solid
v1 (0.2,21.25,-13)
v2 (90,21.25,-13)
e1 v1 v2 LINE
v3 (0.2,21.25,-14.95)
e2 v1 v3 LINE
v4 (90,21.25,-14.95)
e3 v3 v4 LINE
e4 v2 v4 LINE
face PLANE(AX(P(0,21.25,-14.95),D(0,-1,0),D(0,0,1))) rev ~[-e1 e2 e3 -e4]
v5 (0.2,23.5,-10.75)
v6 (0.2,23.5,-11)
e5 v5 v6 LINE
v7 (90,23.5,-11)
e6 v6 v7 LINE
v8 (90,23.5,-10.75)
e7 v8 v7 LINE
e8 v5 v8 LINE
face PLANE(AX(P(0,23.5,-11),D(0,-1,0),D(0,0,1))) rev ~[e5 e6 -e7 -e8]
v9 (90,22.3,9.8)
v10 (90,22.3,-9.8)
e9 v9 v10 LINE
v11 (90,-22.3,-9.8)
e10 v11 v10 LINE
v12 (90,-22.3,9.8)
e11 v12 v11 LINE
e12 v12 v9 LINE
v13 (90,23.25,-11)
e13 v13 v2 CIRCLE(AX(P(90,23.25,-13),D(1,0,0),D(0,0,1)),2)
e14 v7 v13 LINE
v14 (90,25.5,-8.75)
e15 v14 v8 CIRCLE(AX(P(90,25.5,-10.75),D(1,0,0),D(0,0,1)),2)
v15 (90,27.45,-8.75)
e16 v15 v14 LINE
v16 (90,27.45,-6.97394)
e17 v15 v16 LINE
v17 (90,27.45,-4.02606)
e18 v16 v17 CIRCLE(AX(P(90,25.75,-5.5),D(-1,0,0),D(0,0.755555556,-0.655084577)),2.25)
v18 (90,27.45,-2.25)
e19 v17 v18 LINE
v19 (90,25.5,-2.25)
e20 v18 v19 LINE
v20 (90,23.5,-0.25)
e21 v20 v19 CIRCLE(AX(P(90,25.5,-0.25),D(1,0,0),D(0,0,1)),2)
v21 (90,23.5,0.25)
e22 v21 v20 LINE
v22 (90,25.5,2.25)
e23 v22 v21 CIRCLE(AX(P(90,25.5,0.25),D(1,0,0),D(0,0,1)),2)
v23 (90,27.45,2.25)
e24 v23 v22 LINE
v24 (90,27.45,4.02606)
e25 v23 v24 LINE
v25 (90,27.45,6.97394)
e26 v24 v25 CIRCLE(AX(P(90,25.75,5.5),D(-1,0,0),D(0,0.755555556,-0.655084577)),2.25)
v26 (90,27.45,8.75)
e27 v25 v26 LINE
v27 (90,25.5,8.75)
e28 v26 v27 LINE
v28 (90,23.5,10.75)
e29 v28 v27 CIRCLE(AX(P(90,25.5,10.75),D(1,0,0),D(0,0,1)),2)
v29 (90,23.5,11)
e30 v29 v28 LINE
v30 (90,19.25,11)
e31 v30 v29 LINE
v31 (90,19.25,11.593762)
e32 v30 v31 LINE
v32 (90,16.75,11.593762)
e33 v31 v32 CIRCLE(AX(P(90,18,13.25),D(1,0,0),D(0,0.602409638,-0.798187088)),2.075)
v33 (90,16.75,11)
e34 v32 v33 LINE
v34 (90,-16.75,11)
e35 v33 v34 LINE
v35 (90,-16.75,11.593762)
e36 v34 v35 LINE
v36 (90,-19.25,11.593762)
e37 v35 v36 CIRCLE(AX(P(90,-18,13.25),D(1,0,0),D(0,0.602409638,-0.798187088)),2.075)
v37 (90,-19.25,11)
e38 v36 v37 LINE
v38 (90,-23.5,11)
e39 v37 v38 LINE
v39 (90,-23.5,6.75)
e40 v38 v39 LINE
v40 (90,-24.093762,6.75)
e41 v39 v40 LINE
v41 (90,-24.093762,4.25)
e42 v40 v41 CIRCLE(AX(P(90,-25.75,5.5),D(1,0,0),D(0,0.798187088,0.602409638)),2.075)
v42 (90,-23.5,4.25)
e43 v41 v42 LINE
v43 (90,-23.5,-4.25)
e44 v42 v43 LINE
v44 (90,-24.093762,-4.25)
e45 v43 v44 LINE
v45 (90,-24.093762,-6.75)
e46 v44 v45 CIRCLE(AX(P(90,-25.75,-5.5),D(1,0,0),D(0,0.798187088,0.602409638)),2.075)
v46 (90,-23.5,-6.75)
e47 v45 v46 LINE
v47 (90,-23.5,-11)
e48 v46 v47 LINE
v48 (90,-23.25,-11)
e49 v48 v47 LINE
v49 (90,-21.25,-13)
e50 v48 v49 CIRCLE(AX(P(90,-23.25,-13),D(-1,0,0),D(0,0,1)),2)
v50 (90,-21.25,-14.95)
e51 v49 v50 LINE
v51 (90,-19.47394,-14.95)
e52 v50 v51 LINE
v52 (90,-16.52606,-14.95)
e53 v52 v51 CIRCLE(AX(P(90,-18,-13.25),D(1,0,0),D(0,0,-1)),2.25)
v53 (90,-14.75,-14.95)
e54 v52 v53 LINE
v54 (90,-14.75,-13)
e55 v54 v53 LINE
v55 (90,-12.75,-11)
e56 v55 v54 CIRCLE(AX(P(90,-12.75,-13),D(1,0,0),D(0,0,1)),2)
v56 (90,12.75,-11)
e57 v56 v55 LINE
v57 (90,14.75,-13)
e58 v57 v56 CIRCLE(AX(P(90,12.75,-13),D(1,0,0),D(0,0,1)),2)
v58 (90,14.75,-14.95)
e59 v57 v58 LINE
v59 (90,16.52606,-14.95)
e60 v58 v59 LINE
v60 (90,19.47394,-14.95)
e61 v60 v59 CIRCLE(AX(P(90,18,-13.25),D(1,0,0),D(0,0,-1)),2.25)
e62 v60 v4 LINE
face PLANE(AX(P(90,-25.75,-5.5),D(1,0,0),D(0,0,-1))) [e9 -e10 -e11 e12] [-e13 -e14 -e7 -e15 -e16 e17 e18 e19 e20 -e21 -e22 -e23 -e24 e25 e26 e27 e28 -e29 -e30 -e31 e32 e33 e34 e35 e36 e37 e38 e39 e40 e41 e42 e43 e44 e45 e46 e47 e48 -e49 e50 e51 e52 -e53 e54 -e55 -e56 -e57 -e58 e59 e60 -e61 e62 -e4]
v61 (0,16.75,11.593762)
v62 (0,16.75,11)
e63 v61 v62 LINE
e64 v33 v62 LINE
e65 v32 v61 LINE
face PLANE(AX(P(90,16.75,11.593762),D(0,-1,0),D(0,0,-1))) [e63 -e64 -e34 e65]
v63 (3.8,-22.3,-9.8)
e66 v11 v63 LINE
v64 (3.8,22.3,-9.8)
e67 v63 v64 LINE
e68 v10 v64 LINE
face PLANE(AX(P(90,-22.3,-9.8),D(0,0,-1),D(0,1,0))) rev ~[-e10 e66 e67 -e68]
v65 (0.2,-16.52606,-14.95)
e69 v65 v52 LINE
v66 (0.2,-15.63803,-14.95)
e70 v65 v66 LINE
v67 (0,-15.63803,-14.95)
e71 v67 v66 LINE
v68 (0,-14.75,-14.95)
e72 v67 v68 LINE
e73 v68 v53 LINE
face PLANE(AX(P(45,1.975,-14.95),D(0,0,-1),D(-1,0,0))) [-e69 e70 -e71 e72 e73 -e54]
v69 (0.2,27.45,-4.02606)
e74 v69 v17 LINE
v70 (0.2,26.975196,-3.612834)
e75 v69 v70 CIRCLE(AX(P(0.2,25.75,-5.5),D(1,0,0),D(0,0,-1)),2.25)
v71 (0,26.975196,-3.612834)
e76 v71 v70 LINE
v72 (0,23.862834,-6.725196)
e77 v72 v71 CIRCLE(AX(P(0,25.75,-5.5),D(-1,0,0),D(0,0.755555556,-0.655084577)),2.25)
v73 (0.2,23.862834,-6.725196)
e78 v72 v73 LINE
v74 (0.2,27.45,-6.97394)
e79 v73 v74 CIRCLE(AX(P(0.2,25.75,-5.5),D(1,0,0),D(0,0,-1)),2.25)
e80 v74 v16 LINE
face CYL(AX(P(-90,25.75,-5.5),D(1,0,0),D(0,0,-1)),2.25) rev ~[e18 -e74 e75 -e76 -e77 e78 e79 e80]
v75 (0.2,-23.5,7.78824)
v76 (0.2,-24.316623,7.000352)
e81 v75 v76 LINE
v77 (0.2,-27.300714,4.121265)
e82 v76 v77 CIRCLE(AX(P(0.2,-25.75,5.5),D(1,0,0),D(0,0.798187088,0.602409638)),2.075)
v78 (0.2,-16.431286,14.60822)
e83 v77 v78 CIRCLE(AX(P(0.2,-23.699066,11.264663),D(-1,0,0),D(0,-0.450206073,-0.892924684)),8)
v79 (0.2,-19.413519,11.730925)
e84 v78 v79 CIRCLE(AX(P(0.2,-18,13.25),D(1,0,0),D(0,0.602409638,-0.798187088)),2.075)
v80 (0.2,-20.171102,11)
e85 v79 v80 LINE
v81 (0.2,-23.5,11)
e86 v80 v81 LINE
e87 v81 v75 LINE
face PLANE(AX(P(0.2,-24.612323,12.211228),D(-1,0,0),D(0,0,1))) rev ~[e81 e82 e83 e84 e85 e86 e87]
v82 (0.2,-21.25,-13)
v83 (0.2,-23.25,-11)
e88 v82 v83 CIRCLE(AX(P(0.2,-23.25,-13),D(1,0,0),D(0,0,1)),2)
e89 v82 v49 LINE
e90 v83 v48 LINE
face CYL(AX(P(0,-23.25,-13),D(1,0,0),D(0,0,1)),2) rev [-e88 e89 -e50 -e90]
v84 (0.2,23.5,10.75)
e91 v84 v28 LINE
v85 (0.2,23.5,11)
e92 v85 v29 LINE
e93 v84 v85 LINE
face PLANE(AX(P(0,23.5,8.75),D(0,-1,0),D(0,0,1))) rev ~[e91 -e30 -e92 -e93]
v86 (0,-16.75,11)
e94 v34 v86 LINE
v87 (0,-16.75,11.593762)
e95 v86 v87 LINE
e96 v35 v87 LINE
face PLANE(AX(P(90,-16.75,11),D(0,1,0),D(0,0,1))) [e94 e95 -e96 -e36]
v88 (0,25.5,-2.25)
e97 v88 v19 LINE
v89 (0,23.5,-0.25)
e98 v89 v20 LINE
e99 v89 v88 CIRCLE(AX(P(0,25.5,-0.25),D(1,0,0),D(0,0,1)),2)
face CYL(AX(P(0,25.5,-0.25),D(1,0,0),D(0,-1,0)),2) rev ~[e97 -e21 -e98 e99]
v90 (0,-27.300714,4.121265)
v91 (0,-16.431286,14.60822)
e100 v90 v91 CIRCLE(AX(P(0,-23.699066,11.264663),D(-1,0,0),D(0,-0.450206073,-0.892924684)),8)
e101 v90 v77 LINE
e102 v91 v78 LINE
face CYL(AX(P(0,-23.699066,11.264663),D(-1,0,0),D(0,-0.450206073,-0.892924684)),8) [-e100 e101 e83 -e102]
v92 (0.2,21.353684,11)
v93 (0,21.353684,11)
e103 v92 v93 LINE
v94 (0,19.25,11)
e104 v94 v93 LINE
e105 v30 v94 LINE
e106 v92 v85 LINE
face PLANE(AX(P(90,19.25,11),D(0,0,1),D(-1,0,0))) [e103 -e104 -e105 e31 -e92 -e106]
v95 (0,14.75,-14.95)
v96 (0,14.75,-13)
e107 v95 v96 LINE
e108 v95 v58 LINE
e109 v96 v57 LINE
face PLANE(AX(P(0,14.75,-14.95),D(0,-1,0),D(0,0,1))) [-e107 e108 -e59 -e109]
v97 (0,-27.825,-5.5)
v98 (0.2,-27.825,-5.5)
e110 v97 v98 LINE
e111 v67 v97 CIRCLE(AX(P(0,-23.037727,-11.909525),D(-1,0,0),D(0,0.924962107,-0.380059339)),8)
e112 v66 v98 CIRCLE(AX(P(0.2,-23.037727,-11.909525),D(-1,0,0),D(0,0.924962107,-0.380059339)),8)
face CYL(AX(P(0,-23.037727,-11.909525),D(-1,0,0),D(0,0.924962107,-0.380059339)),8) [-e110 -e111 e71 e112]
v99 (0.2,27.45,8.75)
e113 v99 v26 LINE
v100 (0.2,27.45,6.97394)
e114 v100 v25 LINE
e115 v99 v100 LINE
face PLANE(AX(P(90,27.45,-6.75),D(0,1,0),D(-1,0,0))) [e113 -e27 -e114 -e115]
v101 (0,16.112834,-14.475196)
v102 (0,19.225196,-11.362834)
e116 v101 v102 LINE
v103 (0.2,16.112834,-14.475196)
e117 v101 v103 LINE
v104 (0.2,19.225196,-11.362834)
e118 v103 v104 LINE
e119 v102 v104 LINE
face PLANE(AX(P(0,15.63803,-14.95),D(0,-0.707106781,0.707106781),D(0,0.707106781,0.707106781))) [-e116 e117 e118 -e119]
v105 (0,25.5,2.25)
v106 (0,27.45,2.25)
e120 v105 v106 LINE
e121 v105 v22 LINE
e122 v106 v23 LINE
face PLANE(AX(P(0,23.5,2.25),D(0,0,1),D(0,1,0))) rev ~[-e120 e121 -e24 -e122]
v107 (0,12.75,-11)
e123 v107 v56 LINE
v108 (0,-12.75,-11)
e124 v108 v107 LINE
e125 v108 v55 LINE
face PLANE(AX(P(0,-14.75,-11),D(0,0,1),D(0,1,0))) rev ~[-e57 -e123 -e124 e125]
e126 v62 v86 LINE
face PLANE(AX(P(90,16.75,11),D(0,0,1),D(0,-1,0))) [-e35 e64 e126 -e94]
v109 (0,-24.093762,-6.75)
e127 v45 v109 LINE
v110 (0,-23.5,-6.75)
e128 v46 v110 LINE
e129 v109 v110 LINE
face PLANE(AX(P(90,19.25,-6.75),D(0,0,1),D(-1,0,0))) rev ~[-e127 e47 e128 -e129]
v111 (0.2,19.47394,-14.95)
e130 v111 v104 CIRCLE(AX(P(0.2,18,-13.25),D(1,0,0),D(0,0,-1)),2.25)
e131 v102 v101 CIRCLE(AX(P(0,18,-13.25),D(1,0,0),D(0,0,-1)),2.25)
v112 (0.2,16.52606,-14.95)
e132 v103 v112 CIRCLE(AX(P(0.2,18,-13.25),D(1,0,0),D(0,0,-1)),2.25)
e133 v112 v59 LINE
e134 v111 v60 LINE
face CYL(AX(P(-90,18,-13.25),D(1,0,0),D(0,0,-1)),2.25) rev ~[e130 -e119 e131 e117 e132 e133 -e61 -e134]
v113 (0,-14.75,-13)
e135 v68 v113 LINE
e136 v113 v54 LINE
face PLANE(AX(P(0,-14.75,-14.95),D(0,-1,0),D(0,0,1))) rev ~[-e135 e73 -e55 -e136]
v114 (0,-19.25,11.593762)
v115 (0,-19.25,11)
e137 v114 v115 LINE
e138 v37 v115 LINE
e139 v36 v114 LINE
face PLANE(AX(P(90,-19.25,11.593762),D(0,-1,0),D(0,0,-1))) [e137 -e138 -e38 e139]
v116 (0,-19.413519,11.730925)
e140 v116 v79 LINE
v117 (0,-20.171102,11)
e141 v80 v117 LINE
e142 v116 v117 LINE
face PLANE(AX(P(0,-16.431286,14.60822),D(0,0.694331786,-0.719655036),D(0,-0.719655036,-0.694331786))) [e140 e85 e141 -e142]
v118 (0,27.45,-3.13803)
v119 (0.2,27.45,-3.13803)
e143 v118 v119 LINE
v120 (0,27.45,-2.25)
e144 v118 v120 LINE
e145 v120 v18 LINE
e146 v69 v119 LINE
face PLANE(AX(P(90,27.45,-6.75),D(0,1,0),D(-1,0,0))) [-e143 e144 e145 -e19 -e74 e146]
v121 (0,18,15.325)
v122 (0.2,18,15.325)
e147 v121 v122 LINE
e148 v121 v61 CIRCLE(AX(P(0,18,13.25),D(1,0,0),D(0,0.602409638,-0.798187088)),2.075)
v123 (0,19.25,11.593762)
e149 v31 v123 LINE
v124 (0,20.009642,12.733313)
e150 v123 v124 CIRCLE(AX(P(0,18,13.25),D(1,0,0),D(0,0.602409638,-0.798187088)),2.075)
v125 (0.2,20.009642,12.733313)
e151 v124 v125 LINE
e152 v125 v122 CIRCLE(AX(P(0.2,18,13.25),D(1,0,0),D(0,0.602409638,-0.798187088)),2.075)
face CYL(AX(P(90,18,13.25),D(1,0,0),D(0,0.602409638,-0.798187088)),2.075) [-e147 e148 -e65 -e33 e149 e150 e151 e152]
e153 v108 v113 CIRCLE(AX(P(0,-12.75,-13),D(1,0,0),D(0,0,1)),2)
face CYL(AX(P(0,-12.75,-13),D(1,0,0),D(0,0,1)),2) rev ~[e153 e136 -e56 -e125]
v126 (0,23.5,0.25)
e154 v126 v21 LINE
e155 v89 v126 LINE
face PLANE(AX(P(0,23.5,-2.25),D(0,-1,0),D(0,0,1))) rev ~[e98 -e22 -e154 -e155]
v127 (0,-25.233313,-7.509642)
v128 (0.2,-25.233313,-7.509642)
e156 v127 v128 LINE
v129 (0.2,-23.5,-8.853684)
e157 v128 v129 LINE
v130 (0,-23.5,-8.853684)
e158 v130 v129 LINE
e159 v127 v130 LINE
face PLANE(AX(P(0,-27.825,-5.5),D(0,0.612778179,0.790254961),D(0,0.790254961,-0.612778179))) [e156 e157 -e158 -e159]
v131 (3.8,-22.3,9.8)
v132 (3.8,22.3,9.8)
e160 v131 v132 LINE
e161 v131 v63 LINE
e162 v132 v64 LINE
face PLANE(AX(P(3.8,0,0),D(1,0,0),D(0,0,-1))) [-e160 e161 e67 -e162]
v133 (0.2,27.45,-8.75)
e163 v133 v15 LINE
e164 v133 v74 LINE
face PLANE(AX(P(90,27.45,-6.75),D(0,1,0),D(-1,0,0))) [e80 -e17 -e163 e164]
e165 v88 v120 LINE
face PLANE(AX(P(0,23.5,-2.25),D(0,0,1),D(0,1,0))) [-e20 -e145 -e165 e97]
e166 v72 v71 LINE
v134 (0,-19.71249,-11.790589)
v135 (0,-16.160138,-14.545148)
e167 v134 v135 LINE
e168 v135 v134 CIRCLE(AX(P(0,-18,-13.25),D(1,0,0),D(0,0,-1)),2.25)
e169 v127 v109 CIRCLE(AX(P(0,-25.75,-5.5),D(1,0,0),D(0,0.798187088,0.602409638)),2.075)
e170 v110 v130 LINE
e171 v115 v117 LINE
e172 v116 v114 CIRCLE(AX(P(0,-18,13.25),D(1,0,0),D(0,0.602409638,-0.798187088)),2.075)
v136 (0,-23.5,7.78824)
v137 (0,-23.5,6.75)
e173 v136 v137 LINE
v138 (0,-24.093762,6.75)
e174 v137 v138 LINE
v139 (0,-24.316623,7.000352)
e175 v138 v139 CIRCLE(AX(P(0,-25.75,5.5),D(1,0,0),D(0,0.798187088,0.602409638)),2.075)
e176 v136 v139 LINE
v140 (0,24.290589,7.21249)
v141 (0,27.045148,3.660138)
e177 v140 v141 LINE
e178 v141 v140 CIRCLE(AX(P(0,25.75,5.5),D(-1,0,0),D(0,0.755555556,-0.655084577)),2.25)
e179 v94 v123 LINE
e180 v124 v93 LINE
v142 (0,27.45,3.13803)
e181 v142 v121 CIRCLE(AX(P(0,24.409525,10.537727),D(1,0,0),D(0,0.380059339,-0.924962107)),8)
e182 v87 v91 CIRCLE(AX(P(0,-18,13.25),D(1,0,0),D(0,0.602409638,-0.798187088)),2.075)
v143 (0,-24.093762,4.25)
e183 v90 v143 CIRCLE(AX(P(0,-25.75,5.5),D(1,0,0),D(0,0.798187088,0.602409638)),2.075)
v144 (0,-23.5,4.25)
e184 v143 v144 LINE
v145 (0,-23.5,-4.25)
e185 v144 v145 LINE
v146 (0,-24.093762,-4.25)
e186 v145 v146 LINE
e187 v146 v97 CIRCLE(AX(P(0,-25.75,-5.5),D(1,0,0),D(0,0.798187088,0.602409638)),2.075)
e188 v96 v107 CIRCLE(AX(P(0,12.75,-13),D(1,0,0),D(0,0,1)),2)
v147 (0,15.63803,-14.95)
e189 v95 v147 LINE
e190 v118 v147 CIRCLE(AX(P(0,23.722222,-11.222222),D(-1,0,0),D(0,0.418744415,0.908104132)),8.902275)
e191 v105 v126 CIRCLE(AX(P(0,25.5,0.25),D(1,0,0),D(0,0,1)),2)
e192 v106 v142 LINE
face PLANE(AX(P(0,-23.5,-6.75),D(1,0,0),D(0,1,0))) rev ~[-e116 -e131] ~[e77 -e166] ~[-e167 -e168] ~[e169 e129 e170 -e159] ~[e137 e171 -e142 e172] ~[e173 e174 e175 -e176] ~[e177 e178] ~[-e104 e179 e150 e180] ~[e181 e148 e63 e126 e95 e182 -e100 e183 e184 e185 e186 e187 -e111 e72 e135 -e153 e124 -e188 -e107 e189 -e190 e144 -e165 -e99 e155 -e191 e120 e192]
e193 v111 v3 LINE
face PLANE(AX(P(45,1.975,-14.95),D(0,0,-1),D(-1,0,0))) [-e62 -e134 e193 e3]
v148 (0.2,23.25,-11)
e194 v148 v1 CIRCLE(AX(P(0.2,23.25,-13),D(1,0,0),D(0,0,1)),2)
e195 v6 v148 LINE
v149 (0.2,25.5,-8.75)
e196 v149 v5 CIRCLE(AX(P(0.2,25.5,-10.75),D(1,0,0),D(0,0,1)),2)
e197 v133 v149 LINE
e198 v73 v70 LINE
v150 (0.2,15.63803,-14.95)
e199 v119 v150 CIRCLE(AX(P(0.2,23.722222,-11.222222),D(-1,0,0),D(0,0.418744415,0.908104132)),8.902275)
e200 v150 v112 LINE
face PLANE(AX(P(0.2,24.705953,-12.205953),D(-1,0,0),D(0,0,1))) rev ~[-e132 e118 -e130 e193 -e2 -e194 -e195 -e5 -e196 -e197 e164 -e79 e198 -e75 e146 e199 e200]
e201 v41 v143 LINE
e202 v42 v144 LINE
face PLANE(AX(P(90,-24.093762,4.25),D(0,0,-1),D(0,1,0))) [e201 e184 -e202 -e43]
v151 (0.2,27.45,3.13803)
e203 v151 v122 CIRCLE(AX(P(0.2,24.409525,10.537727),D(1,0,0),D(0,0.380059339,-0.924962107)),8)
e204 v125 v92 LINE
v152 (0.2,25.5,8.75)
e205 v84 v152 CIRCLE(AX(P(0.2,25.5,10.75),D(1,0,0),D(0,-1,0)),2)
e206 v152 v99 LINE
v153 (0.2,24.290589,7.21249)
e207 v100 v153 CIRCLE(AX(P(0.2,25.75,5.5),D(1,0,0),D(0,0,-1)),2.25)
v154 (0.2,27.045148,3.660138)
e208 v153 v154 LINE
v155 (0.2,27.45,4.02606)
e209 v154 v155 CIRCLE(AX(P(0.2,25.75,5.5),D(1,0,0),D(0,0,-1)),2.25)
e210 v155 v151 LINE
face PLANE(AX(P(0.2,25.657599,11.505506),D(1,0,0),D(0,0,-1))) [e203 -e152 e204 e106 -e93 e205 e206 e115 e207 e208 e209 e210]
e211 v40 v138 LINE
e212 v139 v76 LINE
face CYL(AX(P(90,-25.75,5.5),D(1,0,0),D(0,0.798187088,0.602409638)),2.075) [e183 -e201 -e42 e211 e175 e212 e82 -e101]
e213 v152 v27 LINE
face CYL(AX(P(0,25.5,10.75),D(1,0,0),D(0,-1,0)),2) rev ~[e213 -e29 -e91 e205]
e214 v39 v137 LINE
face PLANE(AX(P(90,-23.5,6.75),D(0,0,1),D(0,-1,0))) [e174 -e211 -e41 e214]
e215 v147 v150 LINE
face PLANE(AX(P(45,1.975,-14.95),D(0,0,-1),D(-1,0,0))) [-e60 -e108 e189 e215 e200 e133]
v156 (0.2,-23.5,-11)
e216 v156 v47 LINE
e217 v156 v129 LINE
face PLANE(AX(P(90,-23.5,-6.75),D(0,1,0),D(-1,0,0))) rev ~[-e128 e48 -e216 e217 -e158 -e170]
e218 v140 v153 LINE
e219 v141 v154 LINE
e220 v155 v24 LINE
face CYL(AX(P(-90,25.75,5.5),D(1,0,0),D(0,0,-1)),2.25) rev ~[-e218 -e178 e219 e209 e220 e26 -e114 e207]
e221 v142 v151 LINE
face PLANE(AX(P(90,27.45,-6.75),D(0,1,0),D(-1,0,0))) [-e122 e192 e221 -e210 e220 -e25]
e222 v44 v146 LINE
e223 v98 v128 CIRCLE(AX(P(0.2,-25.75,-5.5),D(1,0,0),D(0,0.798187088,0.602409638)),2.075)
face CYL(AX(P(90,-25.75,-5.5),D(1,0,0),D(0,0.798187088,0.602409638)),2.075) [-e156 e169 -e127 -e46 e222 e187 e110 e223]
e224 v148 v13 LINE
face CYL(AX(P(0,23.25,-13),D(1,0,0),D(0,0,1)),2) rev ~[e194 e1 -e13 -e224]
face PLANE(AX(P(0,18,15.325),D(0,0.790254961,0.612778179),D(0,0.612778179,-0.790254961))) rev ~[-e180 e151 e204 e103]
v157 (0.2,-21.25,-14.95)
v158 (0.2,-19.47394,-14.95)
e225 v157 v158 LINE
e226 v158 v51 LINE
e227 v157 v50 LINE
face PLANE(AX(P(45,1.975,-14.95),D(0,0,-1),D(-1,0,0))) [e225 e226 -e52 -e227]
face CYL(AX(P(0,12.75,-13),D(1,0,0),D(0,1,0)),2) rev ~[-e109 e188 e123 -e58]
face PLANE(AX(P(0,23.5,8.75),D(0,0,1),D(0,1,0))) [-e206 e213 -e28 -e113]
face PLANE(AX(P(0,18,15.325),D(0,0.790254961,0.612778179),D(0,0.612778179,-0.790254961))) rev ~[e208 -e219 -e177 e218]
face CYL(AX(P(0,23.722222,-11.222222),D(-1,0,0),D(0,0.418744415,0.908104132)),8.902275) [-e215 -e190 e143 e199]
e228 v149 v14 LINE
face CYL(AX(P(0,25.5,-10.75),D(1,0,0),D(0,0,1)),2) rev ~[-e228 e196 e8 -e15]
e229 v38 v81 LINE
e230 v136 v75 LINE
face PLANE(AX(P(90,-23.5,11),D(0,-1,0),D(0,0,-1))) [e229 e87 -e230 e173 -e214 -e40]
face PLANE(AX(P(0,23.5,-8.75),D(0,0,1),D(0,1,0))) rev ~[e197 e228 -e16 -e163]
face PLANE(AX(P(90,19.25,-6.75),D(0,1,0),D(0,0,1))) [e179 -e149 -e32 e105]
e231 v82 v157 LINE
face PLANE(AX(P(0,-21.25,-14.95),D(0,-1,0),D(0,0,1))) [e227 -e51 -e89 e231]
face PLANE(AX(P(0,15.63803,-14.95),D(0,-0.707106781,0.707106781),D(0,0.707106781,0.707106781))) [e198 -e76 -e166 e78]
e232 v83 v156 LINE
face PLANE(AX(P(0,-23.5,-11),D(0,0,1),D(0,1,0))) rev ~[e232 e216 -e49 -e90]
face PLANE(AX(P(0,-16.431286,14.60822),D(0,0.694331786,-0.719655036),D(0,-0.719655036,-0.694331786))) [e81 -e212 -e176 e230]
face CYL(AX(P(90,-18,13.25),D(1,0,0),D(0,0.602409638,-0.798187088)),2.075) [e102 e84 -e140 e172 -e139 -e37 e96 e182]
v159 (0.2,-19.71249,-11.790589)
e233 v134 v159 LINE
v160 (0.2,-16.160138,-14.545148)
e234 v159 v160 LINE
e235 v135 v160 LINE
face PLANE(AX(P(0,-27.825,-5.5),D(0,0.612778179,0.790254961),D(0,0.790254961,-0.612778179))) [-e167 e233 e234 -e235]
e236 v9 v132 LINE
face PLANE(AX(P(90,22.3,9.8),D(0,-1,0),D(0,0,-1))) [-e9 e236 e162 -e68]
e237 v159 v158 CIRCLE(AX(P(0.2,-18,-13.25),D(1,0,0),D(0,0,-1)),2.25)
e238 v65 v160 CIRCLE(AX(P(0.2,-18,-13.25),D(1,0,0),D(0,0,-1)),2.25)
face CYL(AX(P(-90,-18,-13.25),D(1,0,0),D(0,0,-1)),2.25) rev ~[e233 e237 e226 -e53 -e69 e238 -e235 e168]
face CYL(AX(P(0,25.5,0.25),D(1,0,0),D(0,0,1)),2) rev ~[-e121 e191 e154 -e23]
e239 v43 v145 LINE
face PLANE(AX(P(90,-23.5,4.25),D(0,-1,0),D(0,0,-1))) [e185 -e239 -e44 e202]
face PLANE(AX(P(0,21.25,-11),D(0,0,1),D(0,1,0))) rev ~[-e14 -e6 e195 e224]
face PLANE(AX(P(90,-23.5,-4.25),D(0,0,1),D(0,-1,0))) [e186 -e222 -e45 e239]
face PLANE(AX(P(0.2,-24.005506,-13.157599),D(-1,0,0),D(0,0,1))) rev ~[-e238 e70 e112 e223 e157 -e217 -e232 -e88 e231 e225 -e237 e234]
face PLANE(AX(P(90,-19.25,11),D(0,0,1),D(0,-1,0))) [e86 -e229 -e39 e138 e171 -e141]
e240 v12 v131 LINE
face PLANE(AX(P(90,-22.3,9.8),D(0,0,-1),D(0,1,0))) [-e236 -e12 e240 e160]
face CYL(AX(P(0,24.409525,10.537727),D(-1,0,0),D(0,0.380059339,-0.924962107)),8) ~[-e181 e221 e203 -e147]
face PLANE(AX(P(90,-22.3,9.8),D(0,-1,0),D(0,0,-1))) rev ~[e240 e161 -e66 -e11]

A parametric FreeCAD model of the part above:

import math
import FreeCAD as App
import Part
import Sketcher
from FreeCAD import Vector
Q = App.Units.Quantity


def edges_at(feature, points):
    """Names of the edges that pass closest to the given points."""
    edges = feature.Shape.Edges
    near = lambda p: min(range(len(edges)), key=lambda i: edges[i].distToShape(Part.Vertex(*p))[0])
    return sorted({f"Edge{near(p) + 1}" for p in points})

doc = App.newDocument("Part")
params = doc.addObject("Spreadsheet::Sheet", "Params")
for row, (alias, value) in enumerate([
    ("sketch1_width", "33.5 mm"),
    ("sketch1_height", "8.5 mm"),
    ("pad1_length", "90 mm"),
    ("sketch2_width", "90 mm"),
    ("sketch2_height", "17.75 mm"),
    ("pad2_length", "8.2 mm"),
    ("sketch3_width", "90 mm"),
    ("sketch3_height", "50.95 mm"),
    ("pad3_length", "8.2 mm"),
    ("sketch4_width", "29.5 mm"),
    ("sketch4_height", "3.95 mm"),
    ("sketch5_width", "6.2 mm"),
    ("sketch5_height", "3.95 mm"),
    ("sketch6_width", "3.95 mm"),
    ("sketch6_height", "2.25 mm"),
    ("sketch7_height", "4.5 mm"),
    ("sketch7_width", "3.95 mm"),
    ("sketch8_width", "3.95 mm"),
    ("sketch8_height", "2.25 mm"),
    ("sketch9_width", "2.25 mm"),
    ("sketch9_height", "3.95 mm"),
    ("sketch10_width", "44.6 mm"),
    ("sketch10_height", "19.6 mm"),
    ("pocket7_length", "86.2 mm"),
    ("sketch11_diameter", "2.5 mm"),
    ("hole_diameter", "2.5 mm"),
    ("hole_depth", "90 mm"),
    ("sketch12_diameter", "4.5 mm"),
    ("hole2_diameter", "4.5 mm"),
    ("hole2_depth", "90 mm"),
    ("fillet_radius", "2 mm"),
    ("fillet2_radius", "2 mm"),
    ("sketch13_diameter", "2.5 mm"),
    ("pad4_length", "90 mm"),
    ("sketch14_radius", "8 mm"),
    ("pad5_length", "0.2 mm"),
], start=1):
    params.set(f"A{row}", alias)
    params.set(f"B{row}", "=" + value)
    params.setAlias(f"B{row}", alias)

body = doc.addObject("PartDesign::Body", "Body")

# Sketch on YZ plane
sketch1 = body.newObject("Sketcher::SketchObject", "Sketch")
sketch1.AttachmentSupport = (doc.getObject("YZ_Plane"), [""])
sketch1.MapMode = "FlatFace"
sketch1.AttachmentOffset = App.Placement(Vector(0, 0, 90), App.Rotation())
sketch1.addGeometry(Part.LineSegment(Vector(-24.1, -6.8, 0), Vector(19.2, -6.8, 0)), False)
sketch1.addGeometry(Part.LineSegment(Vector(19.2, -6.8, 0), Vector(19.2, 11.6, 0)), False)
sketch1.addGeometry(Part.ArcOfCircle(Part.Circle(Vector(18, 13.2, 0), Vector(0, 0, 1), 2.1), math.radians(-53), math.radians(233)), False)
sketch1.addGeometry(Part.LineSegment(Vector(16.8, 11.6, 0), Vector(16.8, 11, 0)), False)
sketch1.addGeometry(Part.LineSegment(Vector(16.8, 11, 0), Vector(-16.8, 11, 0)), False)
sketch1.addGeometry(Part.LineSegment(Vector(-16.8, 11, 0), Vector(-16.8, 11.6, 0)), False)
sketch1.addGeometry(Part.ArcOfCircle(Part.Circle(Vector(-18, 13.2, 0), Vector(0, 0, 1), 2.1), math.radians(-53), math.radians(233)), False)
sketch1.addGeometry(Part.LineSegment(Vector(-19.2, 11.6, 0), Vector(-19.2, 11, 0)), False)
sketch1.addGeometry(Part.LineSegment(Vector(-19.2, 11, 0), Vector(-23.5, 11, 0)), False)
sketch1.addGeometry(Part.LineSegment(Vector(-23.5, 11, 0), Vector(-23.5, 6.8, 0)), False)
sketch1.addGeometry(Part.LineSegment(Vector(-23.5, 6.8, 0), Vector(-24.1, 6.8, 0)), False)
sketch1.addGeometry(Part.ArcOfCircle(Part.Circle(Vector(-25.8, 5.5, 0), Vector(0, 0, 1), 2.1), math.radians(37), math.radians(323)), False)
sketch1.addGeometry(Part.LineSegment(Vector(-24.1, 4.2, 0), Vector(-23.5, 4.2, 0)), False)
sketch1.addGeometry(Part.LineSegment(Vector(-23.5, 4.2, 0), Vector(-23.5, -4.2, 0)), False)
sketch1.addGeometry(Part.LineSegment(Vector(-23.5, -4.2, 0), Vector(-24.1, -4.2, 0)), False)
sketch1.addGeometry(Part.ArcOfCircle(Part.Circle(Vector(-25.8, -5.5, 0), Vector(0, 0, 1), 2.1), math.radians(37), math.radians(323)), False)
sketch1.addConstraint(Sketcher.Constraint("Coincident", 0, 2, 1, 1))
sketch1.addConstraint(Sketcher.Constraint("Coincident", 1, 2, 2, 1))
sketch1.addConstraint(Sketcher.Constraint("Coincident", 2, 2, 3, 1))
sketch1.addConstraint(Sketcher.Constraint("Coincident", 3, 2, 4, 1))
sketch1.addConstraint(Sketcher.Constraint("Coincident", 4, 2, 5, 1))
sketch1.addConstraint(Sketcher.Constraint("Coincident", 5, 2, 6, 1))
sketch1.addConstraint(Sketcher.Constraint("Coincident", 6, 2, 7, 1))
sketch1.addConstraint(Sketcher.Constraint("Coincident", 7, 2, 8, 1))
sketch1.addConstraint(Sketcher.Constraint("Coincident", 8, 2, 9, 1))
sketch1.addConstraint(Sketcher.Constraint("Coincident", 9, 2, 10, 1))
sketch1.addConstraint(Sketcher.Constraint("Coincident", 10, 2, 11, 1))
sketch1.addConstraint(Sketcher.Constraint("Coincident", 11, 2, 12, 1))
sketch1.addConstraint(Sketcher.Constraint("Coincident", 12, 2, 13, 1))
sketch1.addConstraint(Sketcher.Constraint("Coincident", 13, 2, 14, 1))
sketch1.addConstraint(Sketcher.Constraint("Coincident", 14, 2, 15, 1))
sketch1.addConstraint(Sketcher.Constraint("Coincident", 15, 2, 0, 1))
sketch1.addConstraint(Sketcher.Constraint("Horizontal", 0))
sketch1.addConstraint(Sketcher.Constraint("Vertical", 1))
sketch1.addConstraint(Sketcher.Constraint("Vertical", 3))
sketch1.addConstraint(Sketcher.Constraint("Horizontal", 4))
sketch1.addConstraint(Sketcher.Constraint("Vertical", 5))
sketch1.addConstraint(Sketcher.Constraint("Vertical", 7))
sketch1.addConstraint(Sketcher.Constraint("Horizontal", 8))
sketch1.addConstraint(Sketcher.Constraint("Vertical", 9))
sketch1.addConstraint(Sketcher.Constraint("Horizontal", 10))
sketch1.addConstraint(Sketcher.Constraint("Horizontal", 12))
sketch1.addConstraint(Sketcher.Constraint("Vertical", 13))
sketch1.addConstraint(Sketcher.Constraint("Horizontal", 14))
sketch1.addConstraint(Sketcher.Constraint("Equal", 2, 6))
sketch1.addConstraint(Sketcher.Constraint("Equal", 6, 11))
sketch1.addConstraint(Sketcher.Constraint("Equal", 11, 15))
sketch1.addConstraint(Sketcher.Constraint("Symmetric", 2, 3, 6, 3, -2))
sketch1.addConstraint(Sketcher.Constraint("Symmetric", 11, 3, 15, 3, -1))
sketch1.addConstraint(Sketcher.Constraint("Horizontal", 1, 2, 2, 2))
sketch1.addConstraint(Sketcher.Constraint("Horizontal", 2, 2, 5, 2))
sketch1.addConstraint(Sketcher.Constraint("Horizontal", 5, 2, 6, 2))
sketch1.addConstraint(Sketcher.Constraint("Horizontal", 4, 2, 7, 2))
sketch1.addConstraint(Sketcher.Constraint("Vertical", 10, 2, 11, 2))
sketch1.addConstraint(Sketcher.Constraint("Vertical", 9, 2, 12, 2))
sketch1.addConstraint(Sketcher.Constraint("Vertical", 11, 2, 14, 2))
sketch1.addConstraint(Sketcher.Constraint("Vertical", 14, 2, 15, 2))
sketch1.addConstraint(Sketcher.Constraint("Equal", 14, 3))
sketch1.addConstraint(Sketcher.Constraint("Equal", 8, 9))
sketch1.addConstraint(Sketcher.Constraint("DistanceX", 4, 2, 4, 1, Q("33.5 mm")))
sketch1.addConstraint(Sketcher.Constraint("DistanceY", 13, 2, 13, 1, Q("8.5 mm")))
sketch1.addConstraint(Sketcher.Constraint("DistanceX", -1, 1, 2, 3, Q("18 mm")))
sketch1.addConstraint(Sketcher.Constraint("DistanceY", -1, 1, 3, 2, Q("11 mm")))
sketch1.addConstraint(Sketcher.Constraint("Radius", 2, Q("2.075 mm")))
sketch1.addConstraint(Sketcher.Constraint("DistanceY", 15, 3, 11, 3, Q("11 mm")))
sketch1.addConstraint(Sketcher.Constraint("DistanceY", 0, 2, 2, 3, Q("20 mm")))
sketch1.setExpression("Constraints[43]", "Params.sketch1_width")
sketch1.setExpression("Constraints[44]", "Params.sketch1_height")
pad1 = body.newObject("PartDesign::Pad", "Pad")
pad1.Profile = sketch1
pad1.setExpression("Length", "Params.pad1_length")
pad1.Reversed = True

# Sketch on XZ plane
sketch2 = body.newObject("Sketcher::SketchObject", "Sketch001")
sketch2.AttachmentSupport = (doc.getObject("XZ_Plane"), [""])
sketch2.MapMode = "FlatFace"
sketch2.AttachmentOffset = App.Placement(Vector(0, 0, -19.25), App.Rotation())
sketch2.addGeometry(Part.LineSegment(Vector(90, 11, 0), Vector(90, -7, 0)), False)
sketch2.addGeometry(Part.LineSegment(Vector(90, -7, 0), Vector(0, -7, 0)), False)
sketch2.addGeometry(Part.LineSegment(Vector(0, -7, 0), Vector(0, 11, 0)), False)
sketch2.addGeometry(Part.LineSegment(Vector(0, 11, 0), Vector(90, 11, 0)), False)
sketch2.addConstraint(Sketcher.Constraint("Coincident", 0, 2, 1, 1))
sketch2.addConstraint(Sketcher.Constraint("Coincident", 1, 2, 2, 1))
sketch2.addConstraint(Sketcher.Constraint("Coincident", 2, 2, 3, 1))
sketch2.addConstraint(Sketcher.Constraint("Coincident", 3, 2, 0, 1))
sketch2.addConstraint(Sketcher.Constraint("Vertical", 0))
sketch2.addConstraint(Sketcher.Constraint("Horizontal", 1))
sketch2.addConstraint(Sketcher.Constraint("Vertical", 2))
sketch2.addConstraint(Sketcher.Constraint("Horizontal", 3))
sketch2.addConstraint(Sketcher.Constraint("PointOnObject", 1, 2, -2))
sketch2.addConstraint(Sketcher.Constraint("DistanceX", 1, 2, 1, 1, Q("90 mm")))
sketch2.addConstraint(Sketcher.Constraint("DistanceY", -1, 1, 2, 2, Q("11 mm")))
sketch2.addConstraint(Sketcher.Constraint("DistanceY", 0, 2, 0, 1, Q("17.75 mm")))
sketch2.setExpression("Constraints[9]", "Params.sketch2_width")
sketch2.setExpression("Constraints[11]", "Params.sketch2_height")
pad2 = body.newObject("PartDesign::Pad", "Pad001")
pad2.Profile = sketch2
pad2.setExpression("Length", "Params.pad2_length")
pad2.Reversed = True

# Sketch on XY plane
sketch3 = body.newObject("Sketcher::SketchObject", "Sketch002")
sketch3.AttachmentSupport = (doc.getObject("XY_Plane"), [""])
sketch3.MapMode = "FlatFace"
sketch3.AttachmentOffset = App.Placement(Vector(0, 0, -6.75), App.Rotation())
sketch3.addGeometry(Part.LineSegment(Vector(90, 27, 0), Vector(90, -24, 0)), False)
sketch3.addGeometry(Part.LineSegment(Vector(90, -24, 0), Vector(0, -24, 0)), False)
sketch3.addGeometry(Part.LineSegment(Vector(0, -24, 0), Vector(0, 27, 0)), False)
sketch3.addGeometry(Part.LineSegment(Vector(0, 27, 0), Vector(90, 27, 0)), False)
sketch3.addConstraint(Sketcher.Constraint("Coincident", 0, 2, 1, 1))
sketch3.addConstraint(Sketcher.Constraint("Coincident", 1, 2, 2, 1))
sketch3.addConstraint(Sketcher.Constraint("Coincident", 2, 2, 3, 1))
sketch3.addConstraint(Sketcher.Constraint("Coincident", 3, 2, 0, 1))
sketch3.addConstraint(Sketcher.Constraint("Vertical", 0))
sketch3.addConstraint(Sketcher.Constraint("Horizontal", 1))
sketch3.addConstraint(Sketcher.Constraint("Vertical", 2))
sketch3.addConstraint(Sketcher.Constraint("Horizontal", 3))
sketch3.addConstraint(Sketcher.Constraint("PointOnObject", 1, 2, -2))
sketch3.addConstraint(Sketcher.Constraint("DistanceX", 1, 2, 1, 1, Q("90 mm")))
sketch3.addConstraint(Sketcher.Constraint("DistanceY", 0, 2, 0, 1, Q("50.95 mm")))
sketch3.addConstraint(Sketcher.Constraint("DistanceY", 0, 2, -1, 1, Q("23.5 mm")))
sketch3.setExpression("Constraints[9]", "Params.sketch3_width")
sketch3.setExpression("Constraints[10]", "Params.sketch3_height")
pad3 = body.newObject("PartDesign::Pad", "Pad002")
pad3.Profile = sketch3
pad3.setExpression("Length", "Params.pad3_length")
pad3.Reversed = True

# Sketch on YZ plane
sketch4 = body.newObject("Sketcher::SketchObject", "Sketch003")
sketch4.AttachmentSupport = (doc.getObject("YZ_Plane"), [""])
sketch4.MapMode = "FlatFace"
sketch4.addGeometry(Part.LineSegment(Vector(14.8, -14.9, 0), Vector(-14.8, -14.9, 0)), False)
sketch4.addGeometry(Part.LineSegment(Vector(-14.8, -14.9, 0), Vector(-14.8, -11, 0)), False)
sketch4.addGeometry(Part.LineSegment(Vector(-14.8, -11, 0), Vector(14.8, -11, 0)), False)
sketch4.addGeometry(Part.LineSegment(Vector(14.8, -11, 0), Vector(14.8, -14.9, 0)), False)
sketch4.addConstraint(Sketcher.Constraint("Coincident", 0, 2, 1, 1))
sketch4.addConstraint(Sketcher.Constraint("Coincident", 1, 2, 2, 1))
sketch4.addConstraint(Sketcher.Constraint("Coincident", 2, 2, 3, 1))
sketch4.addConstraint(Sketcher.Constraint("Coincident", 3, 2, 0, 1))
sketch4.addConstraint(Sketcher.Constraint("Horizontal", 0))
sketch4.addConstraint(Sketcher.Constraint("Vertical", 1))
sketch4.addConstraint(Sketcher.Constraint("Horizontal", 2))
sketch4.addConstraint(Sketcher.Constraint("Vertical", 3))
sketch4.addConstraint(Sketcher.Constraint("DistanceX", 0, 2, 0, 1, Q("29.5 mm")))
sketch4.addConstraint(Sketcher.Constraint("DistanceY", 1, 2, -1, 1, Q("11 mm")))
sketch4.addConstraint(Sketcher.Constraint("DistanceY", 1, 1, 1, 2, Q("3.95 mm")))
sketch4.addConstraint(Sketcher.Constraint("DistanceX", 0, 2, -1, 1, Q("14.75 mm")))
sketch4.setExpression("Constraints[8]", "Params.sketch4_width")
sketch4.setExpression("Constraints[10]", "Params.sketch4_height")
pocket1 = body.newObject("PartDesign::Pocket", "Pocket")
pocket1.Profile = sketch4
pocket1.Type = "ThroughAll"
pocket1.Reversed = True

# Sketch on YZ plane
sketch5 = body.newObject("Sketcher::SketchObject", "Sketch004")
sketch5.AttachmentSupport = (doc.getObject("YZ_Plane"), [""])
sketch5.MapMode = "FlatFace"
sketch5.addGeometry(Part.LineSegment(Vector(27.4, -14.9, 0), Vector(21.2, -14.9, 0)), False)
sketch5.addGeometry(Part.LineSegment(Vector(21.2, -14.9, 0), Vector(21.2, -11, 0)), False)
sketch5.addGeometry(Part.LineSegment(Vector(21.2, -11, 0), Vector(27.4, -11, 0)), False)
sketch5.addGeometry(Part.LineSegment(Vector(27.4, -11, 0), Vector(27.4, -14.9, 0)), False)
sketch5.addConstraint(Sketcher.Constraint("Coincident", 0, 2, 1, 1))
sketch5.addConstraint(Sketcher.Constraint("Coincident", 1, 2, 2, 1))
sketch5.addConstraint(Sketcher.Constraint("Coincident", 2, 2, 3, 1))
sketch5.addConstraint(Sketcher.Constraint("Coincident", 3, 2, 0, 1))
sketch5.addConstraint(Sketcher.Constraint("Horizontal", 0))
sketch5.addConstraint(Sketcher.Constraint("Vertical", 1))
sketch5.addConstraint(Sketcher.Constraint("Horizontal", 2))
sketch5.addConstraint(Sketcher.Constraint("Vertical", 3))
sketch5.addConstraint(Sketcher.Constraint("DistanceX", 0, 2, 0, 1, Q("6.2 mm")))
sketch5.addConstraint(Sketcher.Constraint("DistanceY", 1, 2, -1, 1, Q("11 mm")))
sketch5.addConstraint(Sketcher.Constraint("DistanceY", 1, 1, 1, 2, Q("3.95 mm")))
sketch5.addConstraint(Sketcher.Constraint("DistanceX", -1, 1, 0, 2, Q("21.25 mm")))
sketch5.setExpression("Constraints[8]", "Params.sketch5_width")
sketch5.setExpression("Constraints[10]", "Params.sketch5_height")
pocket2 = body.newObject("PartDesign::Pocket", "Pocket001")
pocket2.Profile = sketch5
pocket2.Type = "ThroughAll"
pocket2.Reversed = True

# Sketch on YZ plane
sketch6 = body.newObject("Sketcher::SketchObject", "Sketch005")
sketch6.AttachmentSupport = (doc.getObject("YZ_Plane"), [""])
sketch6.MapMode = "FlatFace"
sketch6.addGeometry(Part.LineSegment(Vector(27.4, -11, 0), Vector(23.5, -11, 0)), False)
sketch6.addGeometry(Part.LineSegment(Vector(23.5, -11, 0), Vector(23.5, -8.8, 0)), False)
sketch6.addGeometry(Part.LineSegment(Vector(23.5, -8.8, 0), Vector(27.4, -8.8, 0)), False)
sketch6.addGeometry(Part.LineSegment(Vector(27.4, -8.8, 0), Vector(27.4, -11, 0)), False)
sketch6.addConstraint(Sketcher.Constraint("Coincident", 0, 2, 1, 1))
sketch6.addConstraint(Sketcher.Constraint("Coincident", 1, 2, 2, 1))
sketch6.addConstraint(Sketcher.Constraint("Coincident", 2, 2, 3, 1))
sketch6.addConstraint(Sketcher.Constraint("Coincident", 3, 2, 0, 1))
sketch6.addConstraint(Sketcher.Constraint("Horizontal", 0))
sketch6.addConstraint(Sketcher.Constraint("Vertical", 1))
sketch6.addConstraint(Sketcher.Constraint("Horizontal", 2))
sketch6.addConstraint(Sketcher.Constraint("Vertical", 3))
sketch6.addConstraint(Sketcher.Constraint("DistanceY", 0, 2, -1, 1, Q("11 mm")))
sketch6.addConstraint(Sketcher.Constraint("DistanceX", 0, 2, 0, 1, Q("3.95 mm")))
sketch6.addConstraint(Sketcher.Constraint("DistanceY", 1, 1, 1, 2, Q("2.25 mm")))
sketch6.addConstraint(Sketcher.Constraint("DistanceX", -1, 1, 0, 2, Q("23.5 mm")))
sketch6.setExpression("Constraints[9]", "Params.sketch6_width")
sketch6.setExpression("Constraints[10]", "Params.sketch6_height")
pocket3 = body.newObject("PartDesign::Pocket", "Pocket002")
pocket3.Profile = sketch6
pocket3.Type = "ThroughAll"
pocket3.Reversed = True

# Sketch on YZ plane
sketch7 = body.newObject("Sketcher::SketchObject", "Sketch006")
sketch7.AttachmentSupport = (doc.getObject("YZ_Plane"), [""])
sketch7.MapMode = "FlatFace"
sketch7.addGeometry(Part.LineSegment(Vector(27.4, -2.2, 0), Vector(23.5, -2.2, 0)), False)
sketch7.addGeometry(Part.LineSegment(Vector(23.5, -2.2, 0), Vector(23.5, 2.2, 0)), False)
sketch7.addGeometry(Part.LineSegment(Vector(23.5, 2.2, 0), Vector(27.4, 2.2, 0)), False)
sketch7.addGeometry(Part.LineSegment(Vector(27.4, 2.2, 0), Vector(27.4, -2.2, 0)), False)
sketch7.addConstraint(Sketcher.Constraint("Coincident", 0, 2, 1, 1))
sketch7.addConstraint(Sketcher.Constraint("Coincident", 1, 2, 2, 1))
sketch7.addConstraint(Sketcher.Constraint("Coincident", 2, 2, 3, 1))
sketch7.addConstraint(Sketcher.Constraint("Coincident", 3, 2, 0, 1))
sketch7.addConstraint(Sketcher.Constraint("Horizontal", 0))
sketch7.addConstraint(Sketcher.Constraint("Vertical", 1))
sketch7.addConstraint(Sketcher.Constraint("Horizontal", 2))
sketch7.addConstraint(Sketcher.Constraint("Vertical", 3))
sketch7.addConstraint(Sketcher.Constraint("DistanceY", 1, 1, 1, 2, Q("4.5 mm")))
sketch7.addConstraint(Sketcher.Constraint("DistanceX", 0, 2, 0, 1, Q("3.95 mm")))
sketch7.addConstraint(Sketcher.Constraint("DistanceX", -1, 1, 0, 2, Q("23.5 mm")))
sketch7.addConstraint(Sketcher.Constraint("DistanceY", 0, 2, -1, 1, Q("2.25 mm")))
sketch7.setExpression("Constraints[8]", "Params.sketch7_height")
sketch7.setExpression("Constraints[9]", "Params.sketch7_width")
pocket4 = body.newObject("PartDesign::Pocket", "Pocket003")
pocket4.Profile = sketch7
pocket4.Type = "ThroughAll"
pocket4.Reversed = True

# Sketch on YZ plane
sketch8 = body.newObject("Sketcher::SketchObject", "Sketch007")
sketch8.AttachmentSupport = (doc.getObject("YZ_Plane"), [""])
sketch8.MapMode = "FlatFace"
sketch8.addGeometry(Part.LineSegment(Vector(27.4, 8.8, 0), Vector(23.5, 8.8, 0)), False)
sketch8.addGeometry(Part.LineSegment(Vector(23.5, 8.8, 0), Vector(23.5, 11, 0)), False)
sketch8.addGeometry(Part.LineSegment(Vector(23.5, 11, 0), Vector(27.4, 11, 0)), False)
sketch8.addGeometry(Part.LineSegment(Vector(27.4, 11, 0), Vector(27.4, 8.8, 0)), False)
sketch8.addConstraint(Sketcher.Constraint("Coincident", 0, 2, 1, 1))
sketch8.addConstraint(Sketcher.Constraint("Coincident", 1, 2, 2, 1))
sketch8.addConstraint(Sketcher.Constraint("Coincident", 2, 2, 3, 1))
sketch8.addConstraint(Sketcher.Constraint("Coincident", 3, 2, 0, 1))
sketch8.addConstraint(Sketcher.Constraint("Horizontal", 0))
sketch8.addConstraint(Sketcher.Constraint("Vertical", 1))
sketch8.addConstraint(Sketcher.Constraint("Horizontal", 2))
sketch8.addConstraint(Sketcher.Constraint("Vertical", 3))
sketch8.addConstraint(Sketcher.Constraint("DistanceY", -1, 1, 1, 2, Q("11 mm")))
sketch8.addConstraint(Sketcher.Constraint("DistanceX", 0, 2, 0, 1, Q("3.95 mm")))
sketch8.addConstraint(Sketcher.Constraint("DistanceY", 1, 1, 1, 2, Q("2.25 mm")))
sketch8.addConstraint(Sketcher.Constraint("DistanceX", -1, 1, 0, 2, Q("23.5 mm")))
sketch8.setExpression("Constraints[9]", "Params.sketch8_width")
sketch8.setExpression("Constraints[10]", "Params.sketch8_height")
pocket5 = body.newObject("PartDesign::Pocket", "Pocket004")
pocket5.Profile = sketch8
pocket5.Type = "ThroughAll"
pocket5.Reversed = True

# Sketch on YZ plane
sketch9 = body.newObject("Sketcher::SketchObject", "Sketch008")
sketch9.AttachmentSupport = (doc.getObject("YZ_Plane"), [""])
sketch9.MapMode = "FlatFace"
sketch9.addGeometry(Part.LineSegment(Vector(-21.2, -14.9, 0), Vector(-23.5, -14.9, 0)), False)
sketch9.addGeometry(Part.LineSegment(Vector(-23.5, -14.9, 0), Vector(-23.5, -11, 0)), False)
sketch9.addGeometry(Part.LineSegment(Vector(-23.5, -11, 0), Vector(-21.2, -11, 0)), False)
sketch9.addGeometry(Part.LineSegment(Vector(-21.2, -11, 0), Vector(-21.2, -14.9, 0)), False)
sketch9.addConstraint(Sketcher.Constraint("Coincident", 0, 2, 1, 1))
sketch9.addConstraint(Sketcher.Constraint("Coincident", 1, 2, 2, 1))
sketch9.addConstraint(Sketcher.Constraint("Coincident", 2, 2, 3, 1))
sketch9.addConstraint(Sketcher.Constraint("Coincident", 3, 2, 0, 1))
sketch9.addConstraint(Sketcher.Constraint("Horizontal", 0))
sketch9.addConstraint(Sketcher.Constraint("Vertical", 1))
sketch9.addConstraint(Sketcher.Constraint("Horizontal", 2))
sketch9.addConstraint(Sketcher.Constraint("Vertical", 3))
sketch9.addConstraint(Sketcher.Constraint("DistanceY", 1, 2, -1, 1, Q("11 mm")))
sketch9.addConstraint(Sketcher.Constraint("DistanceX", 0, 2, 0, 1, Q("2.25 mm")))
sketch9.addConstraint(Sketcher.Constraint("DistanceY", 1, 1, 1, 2, Q("3.95 mm")))
sketch9.addConstraint(Sketcher.Constraint("DistanceX", 0, 2, -1, 1, Q("23.5 mm")))
sketch9.setExpression("Constraints[9]", "Params.sketch9_width")
sketch9.setExpression("Constraints[10]", "Params.sketch9_height")
pocket6 = body.newObject("PartDesign::Pocket", "Pocket005")
pocket6.Profile = sketch9
pocket6.Type = "ThroughAll"
pocket6.Reversed = True

# Sketch on YZ plane
sketch10 = body.newObject("Sketcher::SketchObject", "Sketch009")
sketch10.AttachmentSupport = (doc.getObject("YZ_Plane"), [""])
sketch10.MapMode = "FlatFace"
sketch10.AttachmentOffset = App.Placement(Vector(0, 0, 90), App.Rotation())
sketch10.addGeometry(Part.LineSegment(Vector(22, 10, 0), Vector(-22, 10, 0)), False)
sketch10.addGeometry(Part.LineSegment(Vector(-22, 10, 0), Vector(-22, -10, 0)), False)
sketch10.addGeometry(Part.LineSegment(Vector(-22, -10, 0), Vector(22, -10, 0)), False)
sketch10.addGeometry(Part.LineSegment(Vector(22, -10, 0), Vector(22, 10, 0)), False)
sketch10.addConstraint(Sketcher.Constraint("Coincident", 0, 2, 1, 1))
sketch10.addConstraint(Sketcher.Constraint("Coincident", 1, 2, 2, 1))
sketch10.addConstraint(Sketcher.Constraint("Coincident", 2, 2, 3, 1))
sketch10.addConstraint(Sketcher.Constraint("Coincident", 3, 2, 0, 1))
sketch10.addConstraint(Sketcher.Constraint("Horizontal", 0))
sketch10.addConstraint(Sketcher.Constraint("Vertical", 1))
sketch10.addConstraint(Sketcher.Constraint("Horizontal", 2))
sketch10.addConstraint(Sketcher.Constraint("Vertical", 3))
sketch10.addConstraint(Sketcher.Constraint("Symmetric", 0, 2, 2, 2, -1, 1))
sketch10.addConstraint(Sketcher.Constraint("DistanceX", 0, 2, 0, 1, Q("44.6 mm")))
sketch10.addConstraint(Sketcher.Constraint("DistanceY", 1, 2, 1, 1, Q("19.6 mm")))
sketch10.setExpression("Constraints[9]", "Params.sketch10_width")
sketch10.setExpression("Constraints[10]", "Params.sketch10_height")
pocket7 = body.newObject("PartDesign::Pocket", "Pocket006")
pocket7.Profile = sketch10
pocket7.setExpression("Length", "Params.pocket7_length")

# Sketch on YZ plane
sketch11 = body.newObject("Sketcher::SketchObject", "Sketch010")
sketch11.AttachmentSupport = (doc.getObject("YZ_Plane"), [""])
sketch11.MapMode = "FlatFace"
sketch11.AttachmentOffset = App.Placement(Vector(0, 0, 90), App.Rotation())
sketch11.addGeometry(Part.Circle(Vector(-25.8, -5.5, 0), Vector(0, 0, 1), 1.2), False)
sketch11.addGeometry(Part.Circle(Vector(-18, 13.2, 0), Vector(0, 0, 1), 1.2), False)
sketch11.addGeometry(Part.Circle(Vector(-25.8, 5.5, 0), Vector(0, 0, 1), 1.2), False)
sketch11.addGeometry(Part.Circle(Vector(18, 13.2, 0), Vector(0, 0, 1), 1.2), False)
sketch11.addConstraint(Sketcher.Constraint("Equal", 0, 1))
sketch11.addConstraint(Sketcher.Constraint("Equal", 1, 2))
sketch11.addConstraint(Sketcher.Constraint("Equal", 2, 3))
sketch11.addConstraint(Sketcher.Constraint("Symmetric", 1, 3, 3, 3, -2))
sketch11.addConstraint(Sketcher.Constraint("Symmetric", 0, 3, 2, 3, -1))
sketch11.addConstraint(Sketcher.Constraint("Diameter", 0, Q("2.5 mm")))
sketch11.addConstraint(Sketcher.Constraint("DistanceX", 1, 3, -1, 1, Q("18 mm")))
sketch11.addConstraint(Sketcher.Constraint("DistanceY", 0, 3, 2, 3, Q("11 mm")))
sketch11.addConstraint(Sketcher.Constraint("DistanceX", 0, 3, -1, 1, Q("25.75 mm")))
sketch11.addConstraint(Sketcher.Constraint("DistanceY", -1, 1, 1, 3, Q("13.25 mm")))
sketch11.setExpression("Constraints[5]", "Params.sketch11_diameter")
doc.recompute()
hole = body.newObject("PartDesign::Hole", "Hole")
hole.Profile = sketch11
hole.ThreadType = "None"
hole.setExpression("Diameter", "Params.hole_diameter")
hole.DepthType = "Dimension"
hole.setExpression("Depth", "Params.hole_depth")
hole.DrillPoint = "Flat"

# Sketch on YZ plane
sketch12 = body.newObject("Sketcher::SketchObject", "Sketch011")
sketch12.AttachmentSupport = (doc.getObject("YZ_Plane"), [""])
sketch12.MapMode = "FlatFace"
sketch12.addGeometry(Part.Circle(Vector(-18, -13.2, 0), Vector(0, 0, 1), 2.2), False)
sketch12.addGeometry(Part.Circle(Vector(18, -13.2, 0), Vector(0, 0, 1), 2.2), False)
sketch12.addGeometry(Part.Circle(Vector(25.8, -5.5, 0), Vector(0, 0, 1), 2.2), False)
sketch12.addGeometry(Part.Circle(Vector(25.8, 5.5, 0), Vector(0, 0, 1), 2.2), False)
sketch12.addConstraint(Sketcher.Constraint("Equal", 0, 1))
sketch12.addConstraint(Sketcher.Constraint("Equal", 1, 2))
sketch12.addConstraint(Sketcher.Constraint("Equal", 2, 3))
sketch12.addConstraint(Sketcher.Constraint("Symmetric", 0, 3, 1, 3, -2))
sketch12.addConstraint(Sketcher.Constraint("Symmetric", 2, 3, 3, 3, -1))
sketch12.addConstraint(Sketcher.Constraint("Diameter", 0, Q("4.5 mm")))
sketch12.addConstraint(Sketcher.Constraint("DistanceX", 0, 3, -1, 1, Q("18 mm")))
sketch12.addConstraint(Sketcher.Constraint("DistanceY", 2, 3, 3, 3, Q("11 mm")))
sketch12.addConstraint(Sketcher.Constraint("DistanceY", 0, 3, -1, 1, Q("13.25 mm")))
sketch12.addConstraint(Sketcher.Constraint("DistanceX", -1, 1, 2, 3, Q("25.75 mm")))
sketch12.setExpression("Constraints[5]", "Params.sketch12_diameter")
doc.recompute()
hole2 = body.newObject("PartDesign::Hole", "Hole001")
hole2.Profile = sketch12
hole2.ThreadType = "None"
hole2.setExpression("Diameter", "Params.hole2_diameter")
hole2.DepthType = "Dimension"
hole2.setExpression("Depth", "Params.hole2_depth")
hole2.DrillPoint = "Flat"
hole2.Reversed = True
doc.recompute()

fillet = body.newObject("PartDesign::Fillet", "Fillet")
fillet.Base = (hole2, edges_at(hole2, [(45, 23.5, 8.75)]))
fillet.setExpression("Radius", "Params.fillet_radius")
doc.recompute()

fillet2 = body.newObject("PartDesign::Fillet", "Fillet001")
fillet2.Base = (fillet, edges_at(fillet, [
    (45, 23.5, -8.75),
    (45, 23.5, 2.25),
    (45, 23.5, -2.25),
    (45, -21.25, -11),
    (45, 14.75, -11),
    (45, -14.75, -11),
    (45, 21.25, -11),
]))
fillet2.setExpression("Radius", "Params.fillet2_radius")

# Sketch on YZ plane
sketch13 = body.newObject("Sketcher::SketchObject", "Sketch012")
sketch13.AttachmentSupport = (doc.getObject("YZ_Plane"), [""])
sketch13.MapMode = "FlatFace"
sketch13.AttachmentOffset = App.Placement(Vector(0, 0, 90), App.Rotation())
sketch13.addGeometry(Part.Circle(Vector(-25.8, -5.5, 0), Vector(0, 0, 1), 1.2), False)
sketch13.addGeometry(Part.Circle(Vector(-25.8, 5.5, 0), Vector(0, 0, 1), 1.2), False)
sketch13.addGeometry(Part.Circle(Vector(-18, 13.2, 0), Vector(0, 0, 1), 1.2), False)
sketch13.addGeometry(Part.Circle(Vector(18, 13.2, 0), Vector(0, 0, 1), 1.2), False)
sketch13.addConstraint(Sketcher.Constraint("Equal", 0, 1))
sketch13.addConstraint(Sketcher.Constraint("Equal", 1, 2))
sketch13.addConstraint(Sketcher.Constraint("Equal", 2, 3))
sketch13.addConstraint(Sketcher.Constraint("Symmetric", 2, 3, 3, 3, -2))
sketch13.addConstraint(Sketcher.Constraint("Symmetric", 0, 3, 1, 3, -1))
sketch13.addConstraint(Sketcher.Constraint("Diameter", 0, Q("2.5 mm")))
sketch13.addConstraint(Sketcher.Constraint("DistanceX", 2, 3, -1, 1, Q("18 mm")))
sketch13.addConstraint(Sketcher.Constraint("DistanceY", 0, 3, 1, 3, Q("11 mm")))
sketch13.addConstraint(Sketcher.Constraint("DistanceX", 0, 3, -1, 1, Q("25.75 mm")))
sketch13.addConstraint(Sketcher.Constraint("DistanceY", -1, 1, 2, 3, Q("13.25 mm")))
sketch13.setExpression("Constraints[5]", "Params.sketch13_diameter")
pad4 = body.newObject("PartDesign::Pad", "Pad003")
pad4.Profile = sketch13
pad4.setExpression("Length", "Params.pad4_length")
pad4.Reversed = True

# Sketch on YZ plane
sketch14 = body.newObject("Sketcher::SketchObject", "Sketch013")
sketch14.AttachmentSupport = (doc.getObject("YZ_Plane"), [""])
sketch14.MapMode = "FlatFace"
sketch14.addGeometry(Part.LineSegment(Vector(16, -15, 0), Vector(27, -3, 0)), False)
sketch14.addGeometry(Part.ArcOfCircle(Part.Circle(Vector(24, -11, 0), Vector(0, 0, 1), 9), math.radians(-155), math.radians(65)), False)
sketch14.addGeometry(Part.LineSegment(Vector(27, 3, 0), Vector(18, 15, 0)), False)
sketch14.addGeometry(Part.ArcOfCircle(Part.Circle(Vector(24, 11, 0), Vector(0, 0, 1), 8), math.radians(-68), math.radians(143)), False)
sketch14.addGeometry(Part.LineSegment(Vector(-16, 15, 0), Vector(-27, 4, 0)), False)
sketch14.addGeometry(Part.ArcOfCircle(Part.Circle(Vector(-24, 11, 0), Vector(0, 0, 1), 8), math.radians(25), math.radians(243)), False)
sketch14.addGeometry(Part.LineSegment(Vector(-28, -6, 0), Vector(-16, -15, 0)), False)
sketch14.addGeometry(Part.ArcOfCircle(Part.Circle(Vector(-23, -12, 0), Vector(0, 0, 1), 8), math.radians(127), math.radians(338)), False)
sketch14.addConstraint(Sketcher.Constraint("Coincident", 0, 1, 1, 1))
sketch14.addConstraint(Sketcher.Constraint("Coincident", 1, 2, 0, 2))
sketch14.addConstraint(Sketcher.Constraint("Coincident", 2, 1, 3, 1))
sketch14.addConstraint(Sketcher.Constraint("Coincident", 3, 2, 2, 2))
sketch14.addConstraint(Sketcher.Constraint("Coincident", 4, 1, 5, 1))
sketch14.addConstraint(Sketcher.Constraint("Coincident", 5, 2, 4, 2))
sketch14.addConstraint(Sketcher.Constraint("Coincident", 6, 1, 7, 1))
sketch14.addConstraint(Sketcher.Constraint("Coincident", 7, 2, 6, 2))
sketch14.addConstraint(Sketcher.Constraint("Equal", 3, 5))
sketch14.addConstraint(Sketcher.Constraint("Equal", 5, 7))
sketch14.addConstraint(Sketcher.Constraint("Symmetric", 0, 1, 7, 2, -2))
sketch14.addConstraint(Sketcher.Constraint("Symmetric", 1, 2, 2, 1, -1))
sketch14.addConstraint(Sketcher.Constraint("Equal", 2, 6))
sketch14.addConstraint(Sketcher.Constraint("Radius", 3, Q("8 mm")))
sketch14.addConstraint(Sketcher.Constraint("Angle", 0, Q("45 deg")))
sketch14.addConstraint(Sketcher.Constraint("DistanceX", -1, 1, 3, 2, Q("18 mm")))
sketch14.addConstraint(Sketcher.Constraint("DistanceY", 6, 1, -1, 1, Q("5.5 mm")))
sketch14.addConstraint(Sketcher.Constraint("DistanceY", 0, 1, -1, 1, Q("14.95 mm")))
sketch14.addConstraint(Sketcher.Constraint("DistanceX", -1, 1, 1, 2, Q("27.45 mm")))
sketch14.addConstraint(Sketcher.Constraint("DistanceY", -1, 1, 3, 2, Q("15.325 mm")))
sketch14.addConstraint(Sketcher.Constraint("Radius", 1, Q("8.902275 mm")))
sketch14.addConstraint(Sketcher.Constraint("Distance", 0, Q("16.704648 mm")))
sketch14.addConstraint(Sketcher.Constraint("DistanceY", -1, 1, 4, 1, Q("14.60822 mm")))
sketch14.addConstraint(Sketcher.Constraint("DistanceX", 5, 3, 3, 3, Q("48.108591 mm")))
sketch14.addConstraint(Sketcher.Constraint("DistanceX", 5, 3, 4, 1, Q("7.26778 mm")))
sketch14.addConstraint(Sketcher.Constraint("DistanceX", 5, 2, 5, 3, Q("3.601649 mm")))
sketch14.setExpression("Constraints[13]", "Params.sketch14_radius")
pad5 = body.newObject("PartDesign::Pad", "Pad004")
pad5.Profile = sketch14
pad5.setExpression("Length", "Params.pad5_length")

doc.recompute()
